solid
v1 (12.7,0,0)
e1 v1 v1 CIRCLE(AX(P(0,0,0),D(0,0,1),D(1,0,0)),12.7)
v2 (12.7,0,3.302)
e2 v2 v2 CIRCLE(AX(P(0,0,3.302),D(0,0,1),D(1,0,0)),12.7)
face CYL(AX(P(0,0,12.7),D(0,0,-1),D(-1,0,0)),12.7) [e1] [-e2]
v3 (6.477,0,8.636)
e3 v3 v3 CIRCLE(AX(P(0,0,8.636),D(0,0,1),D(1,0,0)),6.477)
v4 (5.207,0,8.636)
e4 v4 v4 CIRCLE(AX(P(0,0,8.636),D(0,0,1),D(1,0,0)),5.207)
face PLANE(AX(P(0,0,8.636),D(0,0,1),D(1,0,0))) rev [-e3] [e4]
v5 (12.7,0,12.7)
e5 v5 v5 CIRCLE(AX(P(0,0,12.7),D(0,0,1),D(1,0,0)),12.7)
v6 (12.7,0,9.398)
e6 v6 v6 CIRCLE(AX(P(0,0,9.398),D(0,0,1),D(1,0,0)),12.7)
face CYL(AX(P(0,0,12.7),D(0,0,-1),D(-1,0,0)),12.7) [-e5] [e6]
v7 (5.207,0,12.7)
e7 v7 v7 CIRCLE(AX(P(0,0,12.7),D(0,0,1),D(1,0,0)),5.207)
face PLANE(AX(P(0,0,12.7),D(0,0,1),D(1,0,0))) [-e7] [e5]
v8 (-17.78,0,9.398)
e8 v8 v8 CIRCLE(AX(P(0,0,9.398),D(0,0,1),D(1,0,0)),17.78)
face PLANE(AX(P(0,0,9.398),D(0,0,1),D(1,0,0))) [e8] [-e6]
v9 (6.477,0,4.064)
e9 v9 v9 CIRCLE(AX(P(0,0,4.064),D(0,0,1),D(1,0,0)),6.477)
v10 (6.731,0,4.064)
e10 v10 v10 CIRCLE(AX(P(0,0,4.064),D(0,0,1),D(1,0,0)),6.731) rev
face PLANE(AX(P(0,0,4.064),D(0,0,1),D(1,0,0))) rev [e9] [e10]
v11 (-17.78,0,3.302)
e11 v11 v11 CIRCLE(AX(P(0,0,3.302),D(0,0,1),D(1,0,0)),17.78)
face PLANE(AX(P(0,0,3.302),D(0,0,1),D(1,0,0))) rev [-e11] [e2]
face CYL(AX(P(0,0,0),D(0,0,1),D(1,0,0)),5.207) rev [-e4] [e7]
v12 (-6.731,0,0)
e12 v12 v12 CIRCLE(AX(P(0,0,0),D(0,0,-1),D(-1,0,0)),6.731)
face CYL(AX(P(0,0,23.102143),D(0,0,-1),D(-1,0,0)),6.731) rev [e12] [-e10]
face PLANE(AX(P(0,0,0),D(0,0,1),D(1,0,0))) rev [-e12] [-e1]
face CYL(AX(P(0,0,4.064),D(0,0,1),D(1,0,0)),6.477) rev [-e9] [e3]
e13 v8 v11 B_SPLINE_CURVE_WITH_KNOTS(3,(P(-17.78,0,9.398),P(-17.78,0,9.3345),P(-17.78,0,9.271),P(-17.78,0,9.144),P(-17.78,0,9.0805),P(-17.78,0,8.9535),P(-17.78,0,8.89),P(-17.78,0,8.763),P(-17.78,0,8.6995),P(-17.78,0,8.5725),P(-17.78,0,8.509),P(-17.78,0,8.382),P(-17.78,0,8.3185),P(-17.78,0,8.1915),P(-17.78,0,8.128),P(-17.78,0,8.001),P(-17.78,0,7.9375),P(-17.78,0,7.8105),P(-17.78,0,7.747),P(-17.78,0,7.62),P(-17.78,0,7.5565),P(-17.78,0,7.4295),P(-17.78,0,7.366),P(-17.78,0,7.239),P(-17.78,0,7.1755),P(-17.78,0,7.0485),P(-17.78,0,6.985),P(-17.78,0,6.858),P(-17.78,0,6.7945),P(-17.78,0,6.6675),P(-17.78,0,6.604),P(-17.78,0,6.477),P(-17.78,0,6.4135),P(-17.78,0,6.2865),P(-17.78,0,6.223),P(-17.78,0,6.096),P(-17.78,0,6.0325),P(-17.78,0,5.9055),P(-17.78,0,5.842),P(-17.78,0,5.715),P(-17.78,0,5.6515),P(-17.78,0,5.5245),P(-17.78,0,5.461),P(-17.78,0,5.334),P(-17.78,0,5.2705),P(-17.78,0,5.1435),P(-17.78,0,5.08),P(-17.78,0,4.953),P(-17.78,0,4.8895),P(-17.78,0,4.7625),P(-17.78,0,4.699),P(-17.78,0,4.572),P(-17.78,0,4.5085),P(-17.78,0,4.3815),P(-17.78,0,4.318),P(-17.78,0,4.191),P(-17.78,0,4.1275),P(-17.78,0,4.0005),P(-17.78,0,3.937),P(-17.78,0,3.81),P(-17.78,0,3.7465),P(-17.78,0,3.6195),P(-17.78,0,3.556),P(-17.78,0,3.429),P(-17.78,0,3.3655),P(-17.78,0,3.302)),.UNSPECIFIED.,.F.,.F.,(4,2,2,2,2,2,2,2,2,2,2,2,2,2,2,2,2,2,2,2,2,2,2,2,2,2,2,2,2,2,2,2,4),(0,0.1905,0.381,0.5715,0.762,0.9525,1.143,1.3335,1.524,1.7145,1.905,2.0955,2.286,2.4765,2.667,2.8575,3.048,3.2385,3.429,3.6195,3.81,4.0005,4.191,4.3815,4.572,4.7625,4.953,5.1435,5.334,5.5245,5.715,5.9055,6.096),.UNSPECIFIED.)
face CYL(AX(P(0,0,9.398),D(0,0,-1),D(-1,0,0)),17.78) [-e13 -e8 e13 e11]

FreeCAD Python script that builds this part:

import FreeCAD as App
import Part
import Sketcher
from FreeCAD import Vector
Q = App.Units.Quantity

doc = App.newDocument("Part")
params = doc.addObject("Spreadsheet::Sheet", "Params")
for row, (alias, value) in enumerate([
    ("sketch1_diameter", "1 in"),
    ("pad1_length", "0.5 in"),
    ("sketch2_diameter", "1.4 in"),
    ("pad2_length", "0.24 in"),
    ("sketch3_diameter", "0.51 in"),
    ("pocket1_length", "0.18 in"),
    ("sketch4_diameter", "0.53 in"),
    ("pocket2_length", "0.16 in"),
    ("sketch5_diameter", "0.41 in"),
], start=1):
    params.set(f"A{row}", alias)
    params.set(f"B{row}", "=" + value)
    params.setAlias(f"B{row}", alias)

body = doc.addObject("PartDesign::Body", "Body")

# Sketch on XY plane
sketch1 = body.newObject("Sketcher::SketchObject", "Sketch")
sketch1.AttachmentSupport = (doc.getObject("XY_Plane"), [""])
sketch1.MapMode = "FlatFace"
sketch1.addGeometry(Part.Circle(Vector(0, 0, 0), Vector(0, 0, 1), 13), False)
sketch1.addConstraint([
    Sketcher.Constraint("Coincident", 0, 3, -1, 1),
    Sketcher.Constraint("Diameter", 0, Q("1 in")),
])
sketch1.setExpression("Constraints[1]", "Params.sketch1_diameter")
pad1 = body.newObject("PartDesign::Pad", "Pad")
pad1.Profile = sketch1
pad1.setExpression("Length", "Params.pad1_length")

# Sketch on XY plane
sketch2 = body.newObject("Sketcher::SketchObject", "Sketch001")
sketch2.AttachmentSupport = (doc.getObject("XY_Plane"), [""])
sketch2.MapMode = "FlatFace"
sketch2.AttachmentOffset = App.Placement(Vector(0, 0, 0.25 * 25.4), App.Rotation())
sketch2.addGeometry(Part.Circle(Vector(0, 0, 0), Vector(0, 0, 1), 18), False)
sketch2.addConstraint([
    Sketcher.Constraint("Coincident", 0, 3, -1, 1),
    Sketcher.Constraint("Diameter", 0, Q("1.4 in")),
])
sketch2.setExpression("Constraints[1]", "Params.sketch2_diameter")
pad2 = body.newObject("PartDesign::Pad", "Pad001")
pad2.Profile = sketch2
pad2.setExpression("Length", "Params.pad2_length")
pad2.Midplane = True

# Sketch on XY plane
sketch3 = body.newObject("Sketcher::SketchObject", "Sketch002")
sketch3.AttachmentSupport = (doc.getObject("XY_Plane"), [""])
sketch3.MapMode = "FlatFace"
sketch3.AttachmentOffset = App.Placement(Vector(0, 0, 0.25 * 25.4), App.Rotation())
sketch3.addGeometry(Part.Circle(Vector(0, 0, 0), Vector(0, 0, 1), 6), False)
sketch3.addConstraint([
    Sketcher.Constraint("Coincident", 0, 3, -1, 1),
    Sketcher.Constraint("Diameter", 0, Q("0.51 in")),
])
sketch3.setExpression("Constraints[1]", "Params.sketch3_diameter")
pocket1 = body.newObject("PartDesign::Pocket", "Pocket")
pocket1.Profile = sketch3
pocket1.setExpression("Length", "Params.pocket1_length")
pocket1.Midplane = True

# Sketch on XY plane
sketch4 = body.newObject("Sketcher::SketchObject", "Sketch003")
sketch4.AttachmentSupport = (doc.getObject("XY_Plane"), [""])
sketch4.MapMode = "FlatFace"
sketch4.addGeometry(Part.Circle(Vector(0, 0, 0), Vector(0, 0, 1), 7), False)
sketch4.addConstraint([
    Sketcher.Constraint("Coincident", 0, 3, -1, 1),
    Sketcher.Constraint("Diameter", 0, Q("0.53 in")),
])
sketch4.setExpression("Constraints[1]", "Params.sketch4_diameter")
pocket2 = body.newObject("PartDesign::Pocket", "Pocket001")
pocket2.Profile = sketch4
pocket2.setExpression("Length", "Params.pocket2_length")
pocket2.Reversed = True

# Sketch on XY plane
sketch5 = body.newObject("Sketcher::SketchObject", "Sketch004")
sketch5.AttachmentSupport = (doc.getObject("XY_Plane"), [""])
sketch5.MapMode = "FlatFace"
sketch5.AttachmentOffset = App.Placement(Vector(0, 0, 0.5 * 25.4), App.Rotation())
sketch5.addGeometry(Part.Circle(Vector(0, 0, 0), Vector(0, 0, 1), 5), False)
sketch5.addConstraint([
    Sketcher.Constraint("Coincident", 0, 3, -1, 1),
    Sketcher.Constraint("Diameter", 0, Q("0.41 in")),
])
sketch5.setExpression("Constraints[1]", "Params.sketch5_diameter")
pocket3 = body.newObject("PartDesign::Pocket", "Pocket002")
pocket3.Profile = sketch5
pocket3.Type = "ThroughAll"

doc.recompute()
